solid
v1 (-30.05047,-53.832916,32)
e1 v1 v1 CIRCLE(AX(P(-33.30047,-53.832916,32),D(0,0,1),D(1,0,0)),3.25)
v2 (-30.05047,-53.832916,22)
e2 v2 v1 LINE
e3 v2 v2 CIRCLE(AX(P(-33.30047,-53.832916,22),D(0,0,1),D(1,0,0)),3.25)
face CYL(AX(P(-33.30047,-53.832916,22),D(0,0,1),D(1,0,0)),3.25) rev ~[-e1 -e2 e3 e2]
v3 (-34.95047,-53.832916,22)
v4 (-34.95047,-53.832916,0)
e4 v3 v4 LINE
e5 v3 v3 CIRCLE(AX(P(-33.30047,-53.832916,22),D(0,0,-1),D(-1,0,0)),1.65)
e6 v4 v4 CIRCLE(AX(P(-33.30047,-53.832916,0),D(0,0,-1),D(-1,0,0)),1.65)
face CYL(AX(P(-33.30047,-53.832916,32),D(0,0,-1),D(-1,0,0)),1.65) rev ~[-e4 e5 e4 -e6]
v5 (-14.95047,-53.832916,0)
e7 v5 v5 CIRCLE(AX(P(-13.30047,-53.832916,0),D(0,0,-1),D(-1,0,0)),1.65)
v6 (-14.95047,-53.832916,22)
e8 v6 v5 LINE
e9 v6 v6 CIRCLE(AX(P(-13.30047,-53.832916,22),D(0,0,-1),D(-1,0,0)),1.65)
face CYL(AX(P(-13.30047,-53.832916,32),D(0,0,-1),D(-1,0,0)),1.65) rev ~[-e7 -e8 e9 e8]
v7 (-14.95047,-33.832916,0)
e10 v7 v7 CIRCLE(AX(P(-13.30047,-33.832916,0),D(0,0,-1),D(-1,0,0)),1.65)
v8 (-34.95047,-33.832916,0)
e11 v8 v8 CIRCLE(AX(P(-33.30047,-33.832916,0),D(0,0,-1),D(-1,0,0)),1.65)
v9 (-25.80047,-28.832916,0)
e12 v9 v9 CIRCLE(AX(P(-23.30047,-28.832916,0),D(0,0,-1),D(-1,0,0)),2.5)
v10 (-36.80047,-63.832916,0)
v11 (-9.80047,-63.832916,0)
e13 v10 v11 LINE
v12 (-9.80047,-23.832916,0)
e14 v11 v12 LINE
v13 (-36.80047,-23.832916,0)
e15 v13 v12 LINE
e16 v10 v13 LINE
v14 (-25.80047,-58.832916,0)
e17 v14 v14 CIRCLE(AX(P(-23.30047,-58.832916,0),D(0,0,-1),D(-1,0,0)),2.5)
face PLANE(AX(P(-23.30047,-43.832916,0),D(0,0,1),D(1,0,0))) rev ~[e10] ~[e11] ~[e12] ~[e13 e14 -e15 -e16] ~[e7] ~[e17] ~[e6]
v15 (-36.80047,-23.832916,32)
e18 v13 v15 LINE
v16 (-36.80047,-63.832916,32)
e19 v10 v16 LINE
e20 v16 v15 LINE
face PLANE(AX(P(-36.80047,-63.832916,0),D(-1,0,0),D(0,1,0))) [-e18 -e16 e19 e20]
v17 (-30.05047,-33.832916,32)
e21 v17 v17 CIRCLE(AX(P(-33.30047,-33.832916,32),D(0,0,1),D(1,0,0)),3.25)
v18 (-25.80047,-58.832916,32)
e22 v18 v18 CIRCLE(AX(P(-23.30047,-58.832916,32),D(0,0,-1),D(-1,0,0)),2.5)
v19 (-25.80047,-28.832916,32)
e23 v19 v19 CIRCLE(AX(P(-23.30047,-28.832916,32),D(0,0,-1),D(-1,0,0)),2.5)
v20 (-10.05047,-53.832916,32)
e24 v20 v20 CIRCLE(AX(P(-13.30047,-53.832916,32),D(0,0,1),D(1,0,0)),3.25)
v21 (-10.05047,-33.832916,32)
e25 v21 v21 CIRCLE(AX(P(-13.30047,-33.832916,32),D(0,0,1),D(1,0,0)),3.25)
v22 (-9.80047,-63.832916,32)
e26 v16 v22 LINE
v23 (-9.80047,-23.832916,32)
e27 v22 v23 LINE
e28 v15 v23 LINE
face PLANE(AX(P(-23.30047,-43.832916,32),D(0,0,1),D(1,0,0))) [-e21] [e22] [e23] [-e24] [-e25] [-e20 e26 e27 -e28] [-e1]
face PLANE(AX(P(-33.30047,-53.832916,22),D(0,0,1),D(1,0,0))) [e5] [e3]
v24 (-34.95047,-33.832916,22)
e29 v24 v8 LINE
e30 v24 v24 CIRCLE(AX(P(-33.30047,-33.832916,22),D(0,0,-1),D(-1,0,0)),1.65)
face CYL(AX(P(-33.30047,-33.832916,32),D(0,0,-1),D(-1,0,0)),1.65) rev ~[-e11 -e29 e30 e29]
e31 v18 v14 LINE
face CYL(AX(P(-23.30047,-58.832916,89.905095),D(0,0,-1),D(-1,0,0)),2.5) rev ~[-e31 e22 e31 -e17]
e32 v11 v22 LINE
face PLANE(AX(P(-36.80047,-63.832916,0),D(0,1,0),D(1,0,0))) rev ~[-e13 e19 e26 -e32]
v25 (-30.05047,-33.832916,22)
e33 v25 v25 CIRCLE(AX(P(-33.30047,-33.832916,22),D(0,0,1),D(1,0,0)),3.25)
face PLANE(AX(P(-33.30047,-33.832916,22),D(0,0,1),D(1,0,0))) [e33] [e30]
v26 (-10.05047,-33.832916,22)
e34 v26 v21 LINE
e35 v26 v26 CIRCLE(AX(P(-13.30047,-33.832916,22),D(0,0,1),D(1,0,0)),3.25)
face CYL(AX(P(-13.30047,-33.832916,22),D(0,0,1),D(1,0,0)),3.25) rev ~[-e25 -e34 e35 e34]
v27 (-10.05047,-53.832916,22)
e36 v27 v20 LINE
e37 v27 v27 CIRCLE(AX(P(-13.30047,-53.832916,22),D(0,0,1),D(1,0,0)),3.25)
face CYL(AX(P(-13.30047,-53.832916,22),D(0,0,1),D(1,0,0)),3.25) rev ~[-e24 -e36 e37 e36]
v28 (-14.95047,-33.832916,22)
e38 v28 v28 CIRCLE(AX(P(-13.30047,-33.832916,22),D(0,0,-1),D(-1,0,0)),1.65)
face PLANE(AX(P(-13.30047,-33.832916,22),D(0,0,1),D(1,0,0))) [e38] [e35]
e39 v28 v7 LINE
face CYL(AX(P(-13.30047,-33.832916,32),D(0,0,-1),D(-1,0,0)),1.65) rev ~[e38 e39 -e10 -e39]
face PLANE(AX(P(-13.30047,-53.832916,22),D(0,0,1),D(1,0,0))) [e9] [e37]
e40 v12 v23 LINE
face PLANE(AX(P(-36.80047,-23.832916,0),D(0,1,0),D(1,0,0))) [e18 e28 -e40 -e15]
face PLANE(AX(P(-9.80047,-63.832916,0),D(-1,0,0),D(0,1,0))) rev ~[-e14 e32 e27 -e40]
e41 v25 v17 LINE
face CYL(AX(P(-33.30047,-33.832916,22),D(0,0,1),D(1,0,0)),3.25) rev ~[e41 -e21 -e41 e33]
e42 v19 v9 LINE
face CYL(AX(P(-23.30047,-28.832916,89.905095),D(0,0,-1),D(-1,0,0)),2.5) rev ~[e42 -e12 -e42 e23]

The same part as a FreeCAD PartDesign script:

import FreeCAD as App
import Part
import Sketcher

doc = App.newDocument("Part")
params = doc.addObject("Spreadsheet::Sheet", "Params")
for row, (alias, value) in enumerate([
    ("sketch1_width", "27 mm"),
    ("sketch1_height", "40 mm"),
    ("pad1_length", "32 mm"),
    ("sketch2_diameter", "3.3 mm"),
    ("hole_diameter", "3.3 mm"),
    ("hole_cbore_diameter", "6.5 mm"),
    ("hole_cbore_depth", "10 mm"),
    ("sketch3_diameter", "5 mm"),
    ("hole2_diameter", "5 mm"),
], start=1):
    params.set(f"A{row}", alias)
    params.set(f"B{row}", "=" + value)
    params.setAlias(f"B{row}", alias)

body = doc.addObject("PartDesign::Body", "Body")

# Sketch on XY plane
sketch1 = body.newObject("Sketcher::SketchObject", "Sketch")
sketch1.AttachmentSupport = (doc.getObject("XY_Plane"), [""])
sketch1.MapMode = "FlatFace"
sketch1.addGeometry([
    Part.LineSegment(App.Vector(-37, -24, 0), App.Vector(-37, -64, 0)),
    Part.LineSegment(App.Vector(-37, -64, 0), App.Vector(-10, -64, 0)),
    Part.LineSegment(App.Vector(-10, -64, 0), App.Vector(-10, -24, 0)),
    Part.LineSegment(App.Vector(-10, -24, 0), App.Vector(-37, -24, 0)),
], False)
sketch1.addConstraint([
    Sketcher.Constraint("Coincident", 0, 2, 1, 1),
    Sketcher.Constraint("Coincident", 1, 2, 2, 1),
    Sketcher.Constraint("Coincident", 2, 2, 3, 1),
    Sketcher.Constraint("Coincident", 3, 2, 0, 1),
    Sketcher.Constraint("Vertical", 0),
    Sketcher.Constraint("Horizontal", 1),
    Sketcher.Constraint("Vertical", 2),
    Sketcher.Constraint("Horizontal", 3),
    Sketcher.Constraint("DistanceX", 1, 1, 1, 2, 27.0),
    Sketcher.Constraint("DistanceY", 0, 2, 0, 1, 40.0),
    Sketcher.Constraint("DistanceX", 0, 2, -1, 1, 36.80047),
    Sketcher.Constraint("DistanceY", 0, 2, -1, 1, 63.832916),
])
sketch1.setExpression("Constraints[8]", "Params.sketch1_width")
sketch1.setExpression("Constraints[9]", "Params.sketch1_height")
pad1 = body.newObject("PartDesign::Pad", "Pad")
pad1.Profile = sketch1
pad1.setExpression("Length", "Params.pad1_length")

# Sketch on XY plane
sketch2 = body.newObject("Sketcher::SketchObject", "Sketch001")
sketch2.AttachmentSupport = (doc.getObject("XY_Plane"), [""])
sketch2.MapMode = "FlatFace"
sketch2.AttachmentOffset = App.Placement(App.Vector(0, 0, 32), App.Rotation())
sketch2.addGeometry([
    Part.Circle(App.Vector(-33.3, -33.8, 0), App.Vector(0, 0, 1), 1.6),
    Part.Circle(App.Vector(-13.3, -33.8, 0), App.Vector(0, 0, 1), 1.6),
    Part.Circle(App.Vector(-13.3, -53.8, 0), App.Vector(0, 0, 1), 1.6),
    Part.Circle(App.Vector(-33.3, -53.8, 0), App.Vector(0, 0, 1), 1.6),
], False)
sketch2.addConstraint([
    Sketcher.Constraint("Equal", 0, 1),
    Sketcher.Constraint("Equal", 1, 2),
    Sketcher.Constraint("Equal", 2, 3),
    Sketcher.Constraint("Horizontal", 0, 3, 1, 3),
    Sketcher.Constraint("Horizontal", 2, 3, 3, 3),
    Sketcher.Constraint("Vertical", 1, 3, 2, 3),
    Sketcher.Constraint("Vertical", 0, 3, 3, 3),
    Sketcher.Constraint("Diameter", 0, 3.3),
    Sketcher.Constraint("DistanceX", 0, 3, 1, 3, 20.0),
    Sketcher.Constraint("DistanceY", 2, 3, 1, 3, 20.0),
    Sketcher.Constraint("DistanceX", 0, 3, -1, 1, 33.30047),
    Sketcher.Constraint("DistanceY", 0, 3, -1, 1, 33.832916),
])
sketch2.setExpression("Constraints[7]", "Params.sketch2_diameter")
doc.recompute()
hole = body.newObject("PartDesign::Hole", "Hole")
hole.Profile = sketch2
hole.ThreadType = "None"
hole.setExpression("Diameter", "Params.hole_diameter")
hole.DepthType = "ThroughAll"
hole.HoleCutType = "Counterbore"
hole.setExpression("HoleCutDiameter", "Params.hole_cbore_diameter")
hole.setExpression("HoleCutDepth", "Params.hole_cbore_depth")

# Sketch on XY plane
sketch3 = body.newObject("Sketcher::SketchObject", "Sketch002")
sketch3.AttachmentSupport = (doc.getObject("XY_Plane"), [""])
sketch3.MapMode = "FlatFace"
sketch3.AttachmentOffset = App.Placement(App.Vector(0, 0, 32), App.Rotation())
sketch3.addGeometry([
    Part.Circle(App.Vector(-23.3, -28.8, 0), App.Vector(0, 0, 1), 2.5),
    Part.Circle(App.Vector(-23.3, -58.8, 0), App.Vector(0, 0, 1), 2.5),
], False)
sketch3.addConstraint([
    Sketcher.Constraint("Equal", 0, 1),
    Sketcher.Constraint("Vertical", 0, 3, 1, 3),
    Sketcher.Constraint("Diameter", 0, 5.0),
    Sketcher.Constraint("DistanceY", 1, 3, 0, 3, 30.0),
    Sketcher.Constraint("DistanceX", 0, 3, -1, 1, 23.30047),
    Sketcher.Constraint("DistanceY", 0, 3, -1, 1, 28.832916),
])
sketch3.setExpression("Constraints[2]", "Params.sketch3_diameter")
doc.recompute()
hole2 = body.newObject("PartDesign::Hole", "Hole001")
hole2.Profile = sketch3
hole2.ThreadType = "None"
hole2.setExpression("Diameter", "Params.hole2_diameter")
hole2.DepthType = "ThroughAll"

doc.recompute()
